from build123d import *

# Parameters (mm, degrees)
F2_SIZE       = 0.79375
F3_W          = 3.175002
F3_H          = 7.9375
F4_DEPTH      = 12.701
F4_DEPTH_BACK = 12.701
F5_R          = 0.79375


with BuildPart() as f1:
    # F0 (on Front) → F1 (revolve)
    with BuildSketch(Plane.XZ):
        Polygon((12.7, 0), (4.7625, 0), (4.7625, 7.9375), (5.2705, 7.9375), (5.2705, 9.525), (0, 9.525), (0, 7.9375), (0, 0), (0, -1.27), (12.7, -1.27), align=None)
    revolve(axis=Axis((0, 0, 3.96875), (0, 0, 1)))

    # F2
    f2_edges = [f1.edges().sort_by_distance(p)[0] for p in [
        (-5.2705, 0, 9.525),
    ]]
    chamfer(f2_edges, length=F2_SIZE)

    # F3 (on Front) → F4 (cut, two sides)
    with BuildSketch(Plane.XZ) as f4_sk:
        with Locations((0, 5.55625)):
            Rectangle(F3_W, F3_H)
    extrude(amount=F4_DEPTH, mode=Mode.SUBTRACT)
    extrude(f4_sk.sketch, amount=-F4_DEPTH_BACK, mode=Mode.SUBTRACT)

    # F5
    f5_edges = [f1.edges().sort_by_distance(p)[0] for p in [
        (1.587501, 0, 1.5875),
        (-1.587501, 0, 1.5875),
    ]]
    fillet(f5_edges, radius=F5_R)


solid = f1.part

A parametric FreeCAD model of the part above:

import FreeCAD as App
import Part
import Sketcher

V = App.Vector
Q = App.Units.Quantity


def edges_at(feature, points):
    """Names of the edges that pass closest to the given points."""
    edges = feature.Shape.Edges
    near = lambda p: min(range(len(edges)), key=lambda i: edges[i].distToShape(Part.Vertex(*p))[0])
    return sorted({f"Edge{near(p) + 1}" for p in points})


def add_polygon(sketch, points):
    """Adds a closed chain of lines whose ends are joined by coincident constraints."""
    first, n = sketch.GeometryCount, len(points)
    for a, b in zip(points, points[1:] + points[:1]):
        sketch.addGeometry(Part.LineSegment(App.Vector(*a, 0), App.Vector(*b, 0)), False)
    for i in range(n):
        sketch.addConstraint(Sketcher.Constraint("Coincident", first + i, 2, first + (i + 1) % n, 1))

doc = App.newDocument("Part")
params = doc.addObject("Spreadsheet::Sheet", "Params")
for row, (alias, value) in enumerate([
    ("sketch1_width", "0.5 in"),
    ("sketch1_width2", "0.02 in"),
    ("sketch1_height", "0.05 in"),
    ("sketch1_width3", "0.3125 in"),
    ("sketch1_height2", "0.0625 in"),
    ("revolution_angle", "360 deg"),
    ("chamfer_size", "0.03125 in"),
    ("sketch2_width", "0.1250001 in"),
    ("sketch2_height", "0.3125 in"),
    ("fillet_radius", "0.03125 in"),
], start=1):
    params.set(f"A{row}", alias)
    params.set(f"B{row}", "=" + value)
    params.setAlias(f"B{row}", alias)

body = doc.addObject("PartDesign::Body", "Body")

sketch1 = doc.addObject("Sketcher::SketchObject", "Sketch")
body.addObject(sketch1)
sketch1.AttachmentSupport = (doc.XZ_Plane, [""])
sketch1.MapMode = "FlatFace"
add_polygon(sketch1, [(12.7, 0), (4.7625, 0), (4.7625, 7.9375), (5.2705, 7.9375), (5.2705, 9.525), (0, 9.525), (0, -1.27), (12.7, -1.27)])
sketch1.addConstraint([
    Sketcher.Constraint("Horizontal", 0),
    Sketcher.Constraint("Vertical", 1),
    Sketcher.Constraint("Horizontal", 2),
    Sketcher.Constraint("Vertical", 3),
    Sketcher.Constraint("Horizontal", 4),
    Sketcher.Constraint("Vertical", 5),
    Sketcher.Constraint("Horizontal", 6),
    Sketcher.Constraint("Vertical", 7),
    Sketcher.Constraint("PointOnObject", 0, 2, -1),
    Sketcher.Constraint("PointOnObject", 4, 2, -2),
    Sketcher.Constraint("Equal", 0, 1),
    Sketcher.Constraint("DistanceX", 6, 1, 6, 2, Q("0.5 in")),
    Sketcher.Constraint("DistanceX", 2, 1, 2, 2, Q("0.02 in")),
    Sketcher.Constraint("DistanceY", 7, 1, 7, 2, Q("0.05 in")),
    Sketcher.Constraint("DistanceX", 0, 2, 0, 1, Q("0.3125 in")),
    Sketcher.Constraint("DistanceY", 3, 1, 3, 2, Q("0.0625 in")),
])
sketch1.setExpression("Constraints[19]", "Params.sketch1_width")
sketch1.setExpression("Constraints[20]", "Params.sketch1_width2")
sketch1.setExpression("Constraints[21]", "Params.sketch1_height")
sketch1.setExpression("Constraints[22]", "Params.sketch1_width3")
sketch1.setExpression("Constraints[23]", "Params.sketch1_height2")
revolution = doc.addObject("PartDesign::Revolution", "Revolution")
body.addObject(revolution)
revolution.Profile = sketch1
revolution.ReferenceAxis = (sketch1, ["V_Axis"])
revolution.setExpression("Angle", "Params.revolution_angle")
doc.recompute()

chamfer = doc.addObject("PartDesign::Chamfer", "Chamfer")
body.addObject(chamfer)
chamfer.Base = (revolution, edges_at(revolution, [(-5.271, 0, 9.525)]))
chamfer.setExpression("Size", "Params.chamfer_size")

sketch2 = doc.addObject("Sketcher::SketchObject", "Sketch001")
body.addObject(sketch2)
sketch2.AttachmentSupport = (doc.XZ_Plane, [""])
sketch2.MapMode = "FlatFace"
add_polygon(sketch2, [(-1.587501, 9.525), (-1.587501, 1.5875), (1.587501, 1.5875), (1.587501, 9.525)])
sketch2.addConstraint([
    Sketcher.Constraint("Vertical", 0),
    Sketcher.Constraint("Horizontal", 1),
    Sketcher.Constraint("Vertical", 2),
    Sketcher.Constraint("Horizontal", 3),
    Sketcher.Constraint("DistanceX", 1, 1, 1, 2, Q("0.1250001 in")),
    Sketcher.Constraint("DistanceY", 0, 2, 0, 1, Q("0.3125 in")),
    Sketcher.Constraint("DistanceX", 0, 2, -1, 1, Q("0.0625 in")),
    Sketcher.Constraint("DistanceY", -1, 1, 0, 2, Q("0.0625 in")),
])
sketch2.setExpression("Constraints[8]", "Params.sketch2_width")
sketch2.setExpression("Constraints[9]", "Params.sketch2_height")
pocket1 = doc.addObject("PartDesign::Pocket", "Pocket")
body.addObject(pocket1)
pocket1.Profile = sketch2
pocket1.Type = "ThroughAll"
pocket1.Midplane = True
doc.recompute()

fillet = doc.addObject("PartDesign::Fillet", "Fillet")
body.addObject(fillet)
fillet.Base = (pocket1, edges_at(pocket1, [(1.588, 0, 1.587), (-1.588, 0, 1.587)]))
fillet.setExpression("Radius", "Params.fillet_radius")

doc.recompute()
